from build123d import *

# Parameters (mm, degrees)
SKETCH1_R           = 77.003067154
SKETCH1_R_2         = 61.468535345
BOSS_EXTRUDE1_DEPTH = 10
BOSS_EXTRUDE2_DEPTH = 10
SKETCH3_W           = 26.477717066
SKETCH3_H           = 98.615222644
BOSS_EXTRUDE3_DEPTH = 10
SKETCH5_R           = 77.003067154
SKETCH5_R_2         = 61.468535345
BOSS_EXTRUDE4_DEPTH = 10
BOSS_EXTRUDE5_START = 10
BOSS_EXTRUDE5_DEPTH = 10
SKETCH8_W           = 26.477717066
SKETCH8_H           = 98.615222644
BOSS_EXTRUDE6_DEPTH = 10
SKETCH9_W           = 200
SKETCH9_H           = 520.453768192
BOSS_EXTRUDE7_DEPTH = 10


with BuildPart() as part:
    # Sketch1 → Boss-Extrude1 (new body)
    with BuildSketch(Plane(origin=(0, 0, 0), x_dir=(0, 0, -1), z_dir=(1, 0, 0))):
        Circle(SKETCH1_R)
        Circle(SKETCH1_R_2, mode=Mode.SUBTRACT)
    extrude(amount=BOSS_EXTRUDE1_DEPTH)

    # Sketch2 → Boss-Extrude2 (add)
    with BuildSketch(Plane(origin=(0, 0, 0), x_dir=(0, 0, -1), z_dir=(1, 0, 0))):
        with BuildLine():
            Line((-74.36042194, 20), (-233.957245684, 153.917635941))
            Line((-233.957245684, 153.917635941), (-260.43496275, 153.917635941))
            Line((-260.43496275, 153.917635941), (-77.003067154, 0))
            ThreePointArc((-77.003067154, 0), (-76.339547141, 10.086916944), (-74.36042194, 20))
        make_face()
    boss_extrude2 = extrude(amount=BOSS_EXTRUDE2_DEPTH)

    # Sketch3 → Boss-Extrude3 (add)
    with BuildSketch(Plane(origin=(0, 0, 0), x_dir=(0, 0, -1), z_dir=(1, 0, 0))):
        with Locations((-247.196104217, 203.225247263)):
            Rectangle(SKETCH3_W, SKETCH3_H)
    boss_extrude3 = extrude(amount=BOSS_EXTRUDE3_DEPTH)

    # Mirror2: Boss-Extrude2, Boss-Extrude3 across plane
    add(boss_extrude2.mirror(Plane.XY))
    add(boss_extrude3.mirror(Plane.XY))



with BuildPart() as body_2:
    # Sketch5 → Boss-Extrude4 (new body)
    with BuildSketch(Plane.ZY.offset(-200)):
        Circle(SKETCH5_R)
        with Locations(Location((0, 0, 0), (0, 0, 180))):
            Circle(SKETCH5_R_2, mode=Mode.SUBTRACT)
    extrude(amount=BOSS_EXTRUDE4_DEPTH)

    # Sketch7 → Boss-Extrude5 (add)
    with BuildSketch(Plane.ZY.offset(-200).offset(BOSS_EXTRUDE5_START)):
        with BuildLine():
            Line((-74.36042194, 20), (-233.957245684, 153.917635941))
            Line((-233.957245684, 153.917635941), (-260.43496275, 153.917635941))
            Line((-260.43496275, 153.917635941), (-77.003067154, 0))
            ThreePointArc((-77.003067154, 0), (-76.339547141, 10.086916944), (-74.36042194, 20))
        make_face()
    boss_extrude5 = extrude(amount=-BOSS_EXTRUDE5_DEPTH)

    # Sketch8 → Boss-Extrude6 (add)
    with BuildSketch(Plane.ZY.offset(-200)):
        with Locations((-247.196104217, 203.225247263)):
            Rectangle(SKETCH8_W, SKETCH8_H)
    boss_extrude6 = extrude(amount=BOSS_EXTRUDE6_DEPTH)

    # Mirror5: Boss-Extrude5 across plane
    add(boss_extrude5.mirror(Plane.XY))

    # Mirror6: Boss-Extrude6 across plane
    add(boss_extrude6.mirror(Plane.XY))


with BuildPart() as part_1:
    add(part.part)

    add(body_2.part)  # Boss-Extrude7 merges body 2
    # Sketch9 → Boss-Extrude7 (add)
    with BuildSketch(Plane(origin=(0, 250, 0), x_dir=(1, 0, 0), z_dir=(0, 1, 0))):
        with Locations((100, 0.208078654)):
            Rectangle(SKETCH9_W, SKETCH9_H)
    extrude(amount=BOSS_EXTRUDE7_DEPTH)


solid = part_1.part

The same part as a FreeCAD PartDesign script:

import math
import FreeCAD as App
import Part
import Sketcher

V = App.Vector
Q = App.Units.Quantity

doc = App.newDocument("Part")
params = doc.addObject("Spreadsheet::Sheet", "Params")
for row, (alias, value) in enumerate([
    ("pad1_length", "10 mm"),
    ("pad2_length", "10 mm"),
    ("pad3_length", "10 mm"),
    ("pad4_length", "10 mm"),
    ("pad5_length", "10 mm"),
    ("pad6_length", "10 mm"),
    ("sketch7_width", "200 mm"),
    ("pad7_length", "10 mm"),
], start=1):
    params.set(f"A{row}", alias)
    params.set(f"B{row}", "=" + value)
    params.setAlias(f"B{row}", alias)

body = doc.addObject("PartDesign::Body", "Body")

sketch1 = body.newObject("Sketcher::SketchObject", "Sketch")
sketch1.AttachmentSupport = (doc.getObject("YZ_Plane"), [""])
sketch1.MapMode = "FlatFace"
sketch1.addGeometry(Part.Circle(V(0, 0, 0), V(0, 0, 1), 77.003067), False)
sketch1.addGeometry(Part.Circle(V(0, 0, 0), V(0, 0, 1), 61.468535), False)
sketch1.addConstraint(Sketcher.Constraint("Coincident", 0, 3, -1, 1))
sketch1.addConstraint(Sketcher.Constraint("Coincident", 1, 3, -1, 1))
sketch1.addConstraint(Sketcher.Constraint("Diameter", 1, Q("122.937071 mm")))
sketch1.addConstraint(Sketcher.Constraint("Diameter", 0, Q("154.006134 mm")))
pad1 = body.newObject("PartDesign::Pad", "Pad")
pad1.Profile = sketch1
pad1.setExpression("Length", "Params.pad1_length")

sketch2 = body.newObject("Sketcher::SketchObject", "Sketch001")
sketch2.AttachmentSupport = (doc.getObject("YZ_Plane"), [""])
sketch2.MapMode = "FlatFace"
sketch2.addGeometry(Part.LineSegment(V(20, 74.360422, 0), V(153.917636, 233.957246, 0)), False)
sketch2.addGeometry(Part.LineSegment(V(153.917636, 233.957246, 0), V(153.917636, 260.434963, 0)), False)
sketch2.addGeometry(Part.LineSegment(V(153.917636, 260.434963, 0), V(0, 77.003067, 0)), False)
sketch2.addGeometry(Part.ArcOfCircle(Part.Circle(V(0, 0, 0), V(0, 0, 1), 77.003067), math.radians(74.945963), math.radians(90)), False)
sketch2.addConstraint(Sketcher.Constraint("Coincident", 0, 2, 1, 1))
sketch2.addConstraint(Sketcher.Constraint("Coincident", 1, 2, 2, 1))
sketch2.addConstraint(Sketcher.Constraint("Coincident", 2, 2, 3, 2))
sketch2.addConstraint(Sketcher.Constraint("Coincident", 3, 1, 0, 1))
sketch2.addConstraint(Sketcher.Constraint("Vertical", 1))
sketch2.addConstraint(Sketcher.Constraint("Coincident", 3, 3, -1, 1))
sketch2.addConstraint(Sketcher.Constraint("PointOnObject", 2, 2, -2))
sketch2.addConstraint(Sketcher.Constraint("Parallel", 0, 2))
sketch2.addConstraint(Sketcher.Constraint("Angle", 0, Q("50 deg")))
sketch2.addConstraint(Sketcher.Constraint("DistanceX", -1, 1, 3, 1, Q("20 mm")))
sketch2.addConstraint(Sketcher.Constraint("Radius", 3, Q("77.003067 mm")))
sketch2.addConstraint(Sketcher.Constraint("DistanceY", 2, 2, 0, 2, Q("156.954179 mm")))
pad2 = body.newObject("PartDesign::Pad", "Pad001")
pad2.Profile = sketch2
pad2.setExpression("Length", "Params.pad2_length")

sketch3 = body.newObject("Sketcher::SketchObject", "Sketch002")
sketch3.AttachmentSupport = (doc.getObject("YZ_Plane"), [""])
sketch3.MapMode = "FlatFace"
sketch3.addGeometry(Part.LineSegment(V(252.532859, 260.434963, 0), V(153.917636, 260.434963, 0)), False)
sketch3.addGeometry(Part.LineSegment(V(153.917636, 260.434963, 0), V(153.917636, 233.957246, 0)), False)
sketch3.addGeometry(Part.LineSegment(V(153.917636, 233.957246, 0), V(252.532859, 233.957246, 0)), False)
sketch3.addGeometry(Part.LineSegment(V(252.532859, 233.957246, 0), V(252.532859, 260.434963, 0)), False)
sketch3.addConstraint(Sketcher.Constraint("Coincident", 0, 2, 1, 1))
sketch3.addConstraint(Sketcher.Constraint("Coincident", 1, 2, 2, 1))
sketch3.addConstraint(Sketcher.Constraint("Coincident", 2, 2, 3, 1))
sketch3.addConstraint(Sketcher.Constraint("Coincident", 3, 2, 0, 1))
sketch3.addConstraint(Sketcher.Constraint("Horizontal", 0))
sketch3.addConstraint(Sketcher.Constraint("Vertical", 1))
sketch3.addConstraint(Sketcher.Constraint("Horizontal", 2))
sketch3.addConstraint(Sketcher.Constraint("Vertical", 3))
sketch3.addConstraint(Sketcher.Constraint("DistanceX", 0, 2, 0, 1, Q("98.615223 mm")))
sketch3.addConstraint(Sketcher.Constraint("DistanceY", 1, 2, 1, 1, Q("26.477717 mm")))
sketch3.addConstraint(Sketcher.Constraint("DistanceX", -1, 1, 2, 2, Q("252.532859 mm")))
sketch3.addConstraint(Sketcher.Constraint("DistanceY", -1, 1, 0, 2, Q("260.434963 mm")))
pad3 = body.newObject("PartDesign::Pad", "Pad002")
pad3.Profile = sketch3
pad3.setExpression("Length", "Params.pad3_length")
doc.recompute()

mirrored = body.newObject("PartDesign::Mirrored", "Mirrored")
mirrored.Originals = [pad2, pad3]
mirrored.MirrorPlane = (doc.getObject("XY_Plane"), [""])
body.Tip = mirrored
body2 = doc.addObject("PartDesign::Body", "Body001")

sketch4 = body2.newObject("Sketcher::SketchObject", "Sketch003")
sketch4.AttachmentSupport = (doc.getObject("YZ_Plane001"), [""])
sketch4.MapMode = "FlatFace"
sketch4.AttachmentOffset = App.Placement(V(0, 0, 200), App.Rotation())
sketch4.addGeometry(Part.Circle(V(0, 0, 0), V(0, 0, 1), 77.003067), False)
sketch4.addGeometry(Part.Circle(V(0, 0, 0), V(0, 0, 1), 61.468535), False)
sketch4.addConstraint(Sketcher.Constraint("Coincident", 0, 3, -1, 1))
sketch4.addConstraint(Sketcher.Constraint("Coincident", 1, 3, -1, 1))
sketch4.addConstraint(Sketcher.Constraint("Diameter", 1, Q("122.937071 mm")))
sketch4.addConstraint(Sketcher.Constraint("Diameter", 0, Q("154.006134 mm")))
pad4 = body2.newObject("PartDesign::Pad", "Pad003")
pad4.Profile = sketch4
pad4.setExpression("Length", "Params.pad4_length")
pad4.Reversed = True

sketch5 = body2.newObject("Sketcher::SketchObject", "Sketch004")
sketch5.AttachmentSupport = (doc.getObject("YZ_Plane001"), [""])
sketch5.MapMode = "FlatFace"
sketch5.AttachmentOffset = App.Placement(V(0, 0, 190), App.Rotation())
sketch5.addGeometry(Part.LineSegment(V(20, -74.360422, 0), V(153.917636, -233.957246, 0)), False)
sketch5.addGeometry(Part.LineSegment(V(153.917636, -233.957246, 0), V(153.917636, -260.434963, 0)), False)
sketch5.addGeometry(Part.LineSegment(V(153.917636, -260.434963, 0), V(0, -77.003067, 0)), False)
sketch5.addGeometry(Part.ArcOfCircle(Part.Circle(V(0, 0, 0), V(0, 0, 1), 77.003067), math.radians(-90), math.radians(-74.945963)), False)
sketch5.addConstraint(Sketcher.Constraint("Coincident", 0, 2, 1, 1))
sketch5.addConstraint(Sketcher.Constraint("Coincident", 1, 2, 2, 1))
sketch5.addConstraint(Sketcher.Constraint("Coincident", 2, 2, 3, 1))
sketch5.addConstraint(Sketcher.Constraint("Coincident", 3, 2, 0, 1))
sketch5.addConstraint(Sketcher.Constraint("Vertical", 1))
sketch5.addConstraint(Sketcher.Constraint("Coincident", 3, 3, -1, 1))
sketch5.addConstraint(Sketcher.Constraint("PointOnObject", 2, 2, -2))
sketch5.addConstraint(Sketcher.Constraint("Parallel", 0, 2))
sketch5.addConstraint(Sketcher.Constraint("Angle", 0, Q("-50 deg")))
sketch5.addConstraint(Sketcher.Constraint("DistanceX", -1, 1, 3, 2, Q("20 mm")))
sketch5.addConstraint(Sketcher.Constraint("Radius", 3, Q("77.003067 mm")))
sketch5.addConstraint(Sketcher.Constraint("DistanceY", 0, 2, 2, 2, Q("156.954179 mm")))
pad5 = body2.newObject("PartDesign::Pad", "Pad004")
pad5.Profile = sketch5
pad5.setExpression("Length", "Params.pad5_length")

sketch6 = body2.newObject("Sketcher::SketchObject", "Sketch005")
sketch6.AttachmentSupport = (doc.getObject("YZ_Plane001"), [""])
sketch6.MapMode = "FlatFace"
sketch6.AttachmentOffset = App.Placement(V(0, 0, 200), App.Rotation())
sketch6.addGeometry(Part.LineSegment(V(252.532859, -260.434963, 0), V(153.917636, -260.434963, 0)), False)
sketch6.addGeometry(Part.LineSegment(V(153.917636, -260.434963, 0), V(153.917636, -233.957246, 0)), False)
sketch6.addGeometry(Part.LineSegment(V(153.917636, -233.957246, 0), V(252.532859, -233.957246, 0)), False)
sketch6.addGeometry(Part.LineSegment(V(252.532859, -233.957246, 0), V(252.532859, -260.434963, 0)), False)
sketch6.addConstraint(Sketcher.Constraint("Coincident", 0, 2, 1, 1))
sketch6.addConstraint(Sketcher.Constraint("Coincident", 1, 2, 2, 1))
sketch6.addConstraint(Sketcher.Constraint("Coincident", 2, 2, 3, 1))
sketch6.addConstraint(Sketcher.Constraint("Coincident", 3, 2, 0, 1))
sketch6.addConstraint(Sketcher.Constraint("Horizontal", 0))
sketch6.addConstraint(Sketcher.Constraint("Vertical", 1))
sketch6.addConstraint(Sketcher.Constraint("Horizontal", 2))
sketch6.addConstraint(Sketcher.Constraint("Vertical", 3))
sketch6.addConstraint(Sketcher.Constraint("DistanceX", 0, 2, 0, 1, Q("98.615223 mm")))
sketch6.addConstraint(Sketcher.Constraint("DistanceY", 1, 1, 1, 2, Q("26.477717 mm")))
sketch6.addConstraint(Sketcher.Constraint("DistanceX", -1, 1, 2, 2, Q("252.532859 mm")))
sketch6.addConstraint(Sketcher.Constraint("DistanceY", 0, 2, -1, 1, Q("260.434963 mm")))
pad6 = body2.newObject("PartDesign::Pad", "Pad005")
pad6.Profile = sketch6
pad6.setExpression("Length", "Params.pad6_length")
pad6.Reversed = True
doc.recompute()

mirrored2 = body2.newObject("PartDesign::Mirrored", "Mirrored001")
mirrored2.Originals = [pad5]
mirrored2.MirrorPlane = (doc.getObject("XY_Plane001"), [""])
body2.Tip = mirrored2
doc.recompute()

mirrored3 = body2.newObject("PartDesign::Mirrored", "Mirrored002")
mirrored3.Originals = [pad6]
mirrored3.MirrorPlane = (doc.getObject("XY_Plane001"), [""])
body2.Tip = mirrored3
body.AllowCompound = True
doc.recompute()

boolean = body.newObject("PartDesign::Boolean", "Boolean")
boolean.Type = "Fuse"
boolean.addObjects([body2])

sketch7 = body.newObject("Sketcher::SketchObject", "Sketch006")
sketch7.AttachmentSupport = (doc.getObject("XZ_Plane"), [""])
sketch7.MapMode = "FlatFace"
sketch7.AttachmentOffset = App.Placement(V(0, 0, -250), App.Rotation())
sketch7.addGeometry(Part.LineSegment(V(0, -260.434963, 0), V(0, 260.018805, 0)), False)
sketch7.addGeometry(Part.LineSegment(V(0, 260.018805, 0), V(200, 260.018805, 0)), False)
sketch7.addGeometry(Part.LineSegment(V(200, 260.018805, 0), V(200, -260.434963, 0)), False)
sketch7.addGeometry(Part.LineSegment(V(200, -260.434963, 0), V(0, -260.434963, 0)), False)
sketch7.addConstraint(Sketcher.Constraint("Coincident", 0, 2, 1, 1))
sketch7.addConstraint(Sketcher.Constraint("Coincident", 1, 2, 2, 1))
sketch7.addConstraint(Sketcher.Constraint("Coincident", 2, 2, 3, 1))
sketch7.addConstraint(Sketcher.Constraint("Coincident", 3, 2, 0, 1))
sketch7.addConstraint(Sketcher.Constraint("Vertical", 0))
sketch7.addConstraint(Sketcher.Constraint("Horizontal", 1))
sketch7.addConstraint(Sketcher.Constraint("Vertical", 2))
sketch7.addConstraint(Sketcher.Constraint("Horizontal", 3))
sketch7.addConstraint(Sketcher.Constraint("PointOnObject", 0, 2, -2))
sketch7.addConstraint(Sketcher.Constraint("DistanceX", 1, 1, 1, 2, Q("200 mm")))
sketch7.addConstraint(Sketcher.Constraint("DistanceY", 0, 1, 0, 2, Q("520.453768 mm")))
sketch7.addConstraint(Sketcher.Constraint("DistanceY", -1, 1, 0, 2, Q("260.018805 mm")))
sketch7.setExpression("Constraints[9]", "Params.sketch7_width")
pad7 = body.newObject("PartDesign::Pad", "Pad006")
pad7.Profile = sketch7
pad7.setExpression("Length", "Params.pad7_length")
pad7.Reversed = True

doc.recompute()
